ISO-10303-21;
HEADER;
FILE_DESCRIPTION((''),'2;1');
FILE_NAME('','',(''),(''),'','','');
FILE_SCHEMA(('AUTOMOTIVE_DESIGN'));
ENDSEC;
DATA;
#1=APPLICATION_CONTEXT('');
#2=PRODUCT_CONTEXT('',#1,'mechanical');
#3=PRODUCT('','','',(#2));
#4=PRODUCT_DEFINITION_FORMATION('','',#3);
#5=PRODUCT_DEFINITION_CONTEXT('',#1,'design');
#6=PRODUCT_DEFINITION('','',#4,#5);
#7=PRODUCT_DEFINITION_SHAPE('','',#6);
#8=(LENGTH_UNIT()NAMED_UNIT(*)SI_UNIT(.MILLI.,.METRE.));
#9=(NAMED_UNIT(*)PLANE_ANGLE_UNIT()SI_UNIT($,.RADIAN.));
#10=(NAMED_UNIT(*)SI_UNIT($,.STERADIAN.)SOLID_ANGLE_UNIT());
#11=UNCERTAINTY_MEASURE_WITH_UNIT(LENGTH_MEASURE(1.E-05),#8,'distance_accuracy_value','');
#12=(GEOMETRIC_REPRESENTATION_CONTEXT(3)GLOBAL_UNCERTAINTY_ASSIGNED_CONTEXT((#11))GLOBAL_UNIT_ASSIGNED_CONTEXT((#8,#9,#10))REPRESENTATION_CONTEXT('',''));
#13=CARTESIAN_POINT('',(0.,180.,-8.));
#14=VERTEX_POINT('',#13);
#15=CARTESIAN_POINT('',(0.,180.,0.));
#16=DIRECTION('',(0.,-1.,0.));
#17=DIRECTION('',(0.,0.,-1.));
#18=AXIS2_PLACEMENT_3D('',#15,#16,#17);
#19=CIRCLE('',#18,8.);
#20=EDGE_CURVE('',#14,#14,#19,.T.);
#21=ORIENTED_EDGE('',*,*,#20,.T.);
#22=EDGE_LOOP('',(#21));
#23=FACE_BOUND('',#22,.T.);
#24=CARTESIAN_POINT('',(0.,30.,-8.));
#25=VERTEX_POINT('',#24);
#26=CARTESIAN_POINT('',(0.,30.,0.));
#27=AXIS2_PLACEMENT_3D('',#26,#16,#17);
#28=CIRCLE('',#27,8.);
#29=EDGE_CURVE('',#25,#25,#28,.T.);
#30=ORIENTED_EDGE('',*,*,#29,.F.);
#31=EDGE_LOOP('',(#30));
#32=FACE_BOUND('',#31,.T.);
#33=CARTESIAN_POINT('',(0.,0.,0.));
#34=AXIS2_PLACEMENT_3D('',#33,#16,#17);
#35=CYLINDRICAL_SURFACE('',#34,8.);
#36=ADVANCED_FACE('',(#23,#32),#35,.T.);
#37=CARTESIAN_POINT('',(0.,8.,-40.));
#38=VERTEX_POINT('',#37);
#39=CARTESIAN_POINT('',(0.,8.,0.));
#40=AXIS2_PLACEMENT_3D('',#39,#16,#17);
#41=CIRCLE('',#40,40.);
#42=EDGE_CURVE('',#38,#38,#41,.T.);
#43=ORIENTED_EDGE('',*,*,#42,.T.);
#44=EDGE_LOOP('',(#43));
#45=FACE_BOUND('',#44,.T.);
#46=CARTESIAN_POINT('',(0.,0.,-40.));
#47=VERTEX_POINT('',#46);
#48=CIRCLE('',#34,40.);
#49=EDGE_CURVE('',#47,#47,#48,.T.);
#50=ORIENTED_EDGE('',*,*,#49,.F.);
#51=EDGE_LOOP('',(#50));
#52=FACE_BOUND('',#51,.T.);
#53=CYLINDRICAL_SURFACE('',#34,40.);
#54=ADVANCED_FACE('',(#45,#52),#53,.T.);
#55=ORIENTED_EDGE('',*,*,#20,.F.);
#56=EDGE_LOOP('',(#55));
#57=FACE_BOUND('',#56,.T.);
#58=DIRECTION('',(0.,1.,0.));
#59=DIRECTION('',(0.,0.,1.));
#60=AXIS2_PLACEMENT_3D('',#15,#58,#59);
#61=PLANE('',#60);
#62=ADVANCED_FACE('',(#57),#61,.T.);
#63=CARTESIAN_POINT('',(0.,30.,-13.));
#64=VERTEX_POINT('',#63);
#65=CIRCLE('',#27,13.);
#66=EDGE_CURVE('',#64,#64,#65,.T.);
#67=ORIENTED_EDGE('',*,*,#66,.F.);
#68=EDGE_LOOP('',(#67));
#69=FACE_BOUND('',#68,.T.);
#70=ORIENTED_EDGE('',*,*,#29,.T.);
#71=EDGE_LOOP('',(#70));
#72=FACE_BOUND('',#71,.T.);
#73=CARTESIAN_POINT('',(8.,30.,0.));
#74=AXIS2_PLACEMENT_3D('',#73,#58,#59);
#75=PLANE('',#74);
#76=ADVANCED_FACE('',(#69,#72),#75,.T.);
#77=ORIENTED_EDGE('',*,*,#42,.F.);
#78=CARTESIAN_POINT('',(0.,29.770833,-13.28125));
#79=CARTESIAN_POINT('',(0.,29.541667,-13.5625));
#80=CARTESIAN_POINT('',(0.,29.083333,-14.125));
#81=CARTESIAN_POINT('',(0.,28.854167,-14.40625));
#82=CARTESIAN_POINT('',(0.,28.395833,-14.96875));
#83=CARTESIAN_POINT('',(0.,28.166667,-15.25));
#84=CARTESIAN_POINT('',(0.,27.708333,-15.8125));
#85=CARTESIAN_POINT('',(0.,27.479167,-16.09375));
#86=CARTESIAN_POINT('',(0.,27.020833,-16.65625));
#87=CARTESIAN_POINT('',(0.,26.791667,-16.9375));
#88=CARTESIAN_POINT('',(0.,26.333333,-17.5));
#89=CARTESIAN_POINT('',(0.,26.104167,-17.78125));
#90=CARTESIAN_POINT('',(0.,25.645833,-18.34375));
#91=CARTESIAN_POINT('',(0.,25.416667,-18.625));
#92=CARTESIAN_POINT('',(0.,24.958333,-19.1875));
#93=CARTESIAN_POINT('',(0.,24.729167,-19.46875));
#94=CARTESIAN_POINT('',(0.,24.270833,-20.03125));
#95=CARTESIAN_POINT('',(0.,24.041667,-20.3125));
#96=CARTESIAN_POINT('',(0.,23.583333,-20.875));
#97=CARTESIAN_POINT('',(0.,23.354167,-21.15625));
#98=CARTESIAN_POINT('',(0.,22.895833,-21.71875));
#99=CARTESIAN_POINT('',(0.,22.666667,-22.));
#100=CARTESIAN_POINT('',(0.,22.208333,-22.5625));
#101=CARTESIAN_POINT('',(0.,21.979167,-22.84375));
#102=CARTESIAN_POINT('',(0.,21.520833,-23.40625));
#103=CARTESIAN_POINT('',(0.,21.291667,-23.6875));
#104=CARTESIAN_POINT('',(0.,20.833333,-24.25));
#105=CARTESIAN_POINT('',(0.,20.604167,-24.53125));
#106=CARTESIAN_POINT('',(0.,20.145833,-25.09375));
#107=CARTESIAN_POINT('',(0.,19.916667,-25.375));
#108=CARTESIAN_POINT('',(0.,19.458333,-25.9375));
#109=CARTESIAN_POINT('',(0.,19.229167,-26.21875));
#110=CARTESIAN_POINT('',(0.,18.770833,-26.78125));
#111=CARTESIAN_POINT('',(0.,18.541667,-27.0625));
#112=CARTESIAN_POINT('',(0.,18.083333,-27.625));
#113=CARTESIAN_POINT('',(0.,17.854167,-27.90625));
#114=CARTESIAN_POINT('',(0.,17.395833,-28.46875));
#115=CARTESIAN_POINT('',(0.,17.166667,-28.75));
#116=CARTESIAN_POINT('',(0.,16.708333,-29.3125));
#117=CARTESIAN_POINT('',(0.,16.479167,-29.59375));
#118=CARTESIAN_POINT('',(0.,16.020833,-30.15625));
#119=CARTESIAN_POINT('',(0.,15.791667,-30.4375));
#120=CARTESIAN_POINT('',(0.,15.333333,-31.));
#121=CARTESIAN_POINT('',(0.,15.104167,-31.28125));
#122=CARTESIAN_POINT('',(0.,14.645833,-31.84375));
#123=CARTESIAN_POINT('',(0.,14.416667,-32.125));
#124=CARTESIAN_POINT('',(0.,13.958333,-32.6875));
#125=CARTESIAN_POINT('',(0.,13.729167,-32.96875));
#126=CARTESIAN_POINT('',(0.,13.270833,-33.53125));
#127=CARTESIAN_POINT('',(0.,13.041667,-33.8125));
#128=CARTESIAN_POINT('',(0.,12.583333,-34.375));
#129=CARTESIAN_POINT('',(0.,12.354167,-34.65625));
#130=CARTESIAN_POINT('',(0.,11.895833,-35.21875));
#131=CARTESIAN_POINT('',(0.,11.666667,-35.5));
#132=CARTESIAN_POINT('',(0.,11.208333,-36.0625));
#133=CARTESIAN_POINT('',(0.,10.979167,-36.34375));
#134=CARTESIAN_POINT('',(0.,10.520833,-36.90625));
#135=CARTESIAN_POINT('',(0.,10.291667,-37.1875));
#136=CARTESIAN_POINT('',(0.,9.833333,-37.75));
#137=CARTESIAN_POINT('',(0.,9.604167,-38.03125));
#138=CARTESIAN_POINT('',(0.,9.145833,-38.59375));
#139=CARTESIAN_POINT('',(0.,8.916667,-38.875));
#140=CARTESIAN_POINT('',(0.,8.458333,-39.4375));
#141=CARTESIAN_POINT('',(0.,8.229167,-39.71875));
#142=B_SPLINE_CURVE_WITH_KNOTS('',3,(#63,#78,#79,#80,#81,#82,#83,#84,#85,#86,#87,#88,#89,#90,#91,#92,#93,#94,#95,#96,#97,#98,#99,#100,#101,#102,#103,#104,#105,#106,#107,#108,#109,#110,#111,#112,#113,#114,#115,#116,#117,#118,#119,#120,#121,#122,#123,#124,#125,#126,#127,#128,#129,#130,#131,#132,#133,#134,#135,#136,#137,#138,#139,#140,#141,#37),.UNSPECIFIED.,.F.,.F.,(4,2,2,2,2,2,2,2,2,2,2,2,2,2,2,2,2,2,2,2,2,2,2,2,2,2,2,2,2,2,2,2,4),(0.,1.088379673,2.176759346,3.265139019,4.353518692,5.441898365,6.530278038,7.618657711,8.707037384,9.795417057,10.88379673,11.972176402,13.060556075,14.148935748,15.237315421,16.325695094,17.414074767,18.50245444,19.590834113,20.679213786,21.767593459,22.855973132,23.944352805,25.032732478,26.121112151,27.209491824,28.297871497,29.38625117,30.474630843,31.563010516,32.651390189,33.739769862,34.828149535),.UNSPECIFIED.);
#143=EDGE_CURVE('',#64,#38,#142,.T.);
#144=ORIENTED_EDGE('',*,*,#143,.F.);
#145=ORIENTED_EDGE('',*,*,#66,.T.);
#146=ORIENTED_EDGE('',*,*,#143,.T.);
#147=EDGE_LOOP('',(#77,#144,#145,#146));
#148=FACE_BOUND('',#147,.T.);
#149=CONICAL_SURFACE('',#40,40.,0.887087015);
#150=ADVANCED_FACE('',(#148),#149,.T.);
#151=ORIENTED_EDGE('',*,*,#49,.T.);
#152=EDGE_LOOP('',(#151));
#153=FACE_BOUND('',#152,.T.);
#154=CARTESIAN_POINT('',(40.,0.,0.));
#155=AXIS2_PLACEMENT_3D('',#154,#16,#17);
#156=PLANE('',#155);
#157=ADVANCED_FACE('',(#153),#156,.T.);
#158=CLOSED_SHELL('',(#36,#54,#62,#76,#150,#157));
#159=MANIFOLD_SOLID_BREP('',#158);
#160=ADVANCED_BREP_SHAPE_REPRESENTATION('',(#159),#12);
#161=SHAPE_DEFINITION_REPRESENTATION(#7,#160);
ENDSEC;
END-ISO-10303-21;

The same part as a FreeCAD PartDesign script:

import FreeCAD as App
import Part
import Sketcher
from FreeCAD import Vector
Q = App.Units.Quantity

doc = App.newDocument("Part")
params = doc.addObject("Spreadsheet::Sheet", "Params")
for row, (alias, value) in enumerate([
    ("sketch1_width", "40 mm"),
    ("sketch1_width2", "5 mm"),
    ("sketch1_width3", "8 mm"),
    ("sketch1_height", "180 mm"),
    ("sketch1_height2", "150 mm"),
    ("revolution_angle", "360 deg"),
], start=1):
    params.set(f"A{row}", alias)
    params.set(f"B{row}", "=" + value)
    params.setAlias(f"B{row}", alias)

body = doc.addObject("PartDesign::Body", "Body")

sketch1 = body.newObject("Sketcher::SketchObject", "Sketch")
sketch1.AttachmentSupport = (doc.getObject("XY_Plane"), [""])
sketch1.MapMode = "FlatFace"
sketch1.addGeometry([
    Part.LineSegment(Vector(0, 180, 0), Vector(0, 0, 0)),
    Part.LineSegment(Vector(0, 0, 0), Vector(40, 0, 0)),
    Part.LineSegment(Vector(40, 0, 0), Vector(40, 8, 0)),
    Part.LineSegment(Vector(40, 8, 0), Vector(13, 30, 0)),
    Part.LineSegment(Vector(13, 30, 0), Vector(8, 30, 0)),
    Part.LineSegment(Vector(8, 30, 0), Vector(8, 180, 0)),
    Part.LineSegment(Vector(8, 180, 0), Vector(0, 180, 0)),
], False)
sketch1.addConstraint([
    Sketcher.Constraint("Coincident", 0, 2, 1, 1),
    Sketcher.Constraint("Coincident", 1, 2, 2, 1),
    Sketcher.Constraint("Coincident", 2, 2, 3, 1),
    Sketcher.Constraint("Coincident", 3, 2, 4, 1),
    Sketcher.Constraint("Coincident", 4, 2, 5, 1),
    Sketcher.Constraint("Coincident", 5, 2, 6, 1),
    Sketcher.Constraint("Coincident", 6, 2, 0, 1),
    Sketcher.Constraint("Vertical", 0),
    Sketcher.Constraint("Horizontal", 1),
    Sketcher.Constraint("Vertical", 2),
    Sketcher.Constraint("Horizontal", 4),
    Sketcher.Constraint("Vertical", 5),
    Sketcher.Constraint("Horizontal", 6),
    Sketcher.Constraint("Coincident", 0, 2, -1, 1),
    Sketcher.Constraint("Equal", 6, 2),
    Sketcher.Constraint("DistanceX", 1, 1, 1, 2, Q("40 mm")),
    Sketcher.Constraint("DistanceX", 4, 2, 4, 1, Q("5 mm")),
    Sketcher.Constraint("DistanceX", 6, 2, 6, 1, Q("8 mm")),
    Sketcher.Constraint("DistanceY", 0, 2, 0, 1, Q("180 mm")),
    Sketcher.Constraint("DistanceY", 5, 1, 5, 2, Q("150 mm")),
])
sketch1.setExpression("Constraints[15]", "Params.sketch1_width")
sketch1.setExpression("Constraints[16]", "Params.sketch1_width2")
sketch1.setExpression("Constraints[17]", "Params.sketch1_width3")
sketch1.setExpression("Constraints[18]", "Params.sketch1_height")
sketch1.setExpression("Constraints[19]", "Params.sketch1_height2")
revolution = body.newObject("PartDesign::Revolution", "Revolution")
revolution.Profile = sketch1
revolution.ReferenceAxis = (sketch1, ["V_Axis"])
revolution.setExpression("Angle", "Params.revolution_angle")

doc.recompute()
